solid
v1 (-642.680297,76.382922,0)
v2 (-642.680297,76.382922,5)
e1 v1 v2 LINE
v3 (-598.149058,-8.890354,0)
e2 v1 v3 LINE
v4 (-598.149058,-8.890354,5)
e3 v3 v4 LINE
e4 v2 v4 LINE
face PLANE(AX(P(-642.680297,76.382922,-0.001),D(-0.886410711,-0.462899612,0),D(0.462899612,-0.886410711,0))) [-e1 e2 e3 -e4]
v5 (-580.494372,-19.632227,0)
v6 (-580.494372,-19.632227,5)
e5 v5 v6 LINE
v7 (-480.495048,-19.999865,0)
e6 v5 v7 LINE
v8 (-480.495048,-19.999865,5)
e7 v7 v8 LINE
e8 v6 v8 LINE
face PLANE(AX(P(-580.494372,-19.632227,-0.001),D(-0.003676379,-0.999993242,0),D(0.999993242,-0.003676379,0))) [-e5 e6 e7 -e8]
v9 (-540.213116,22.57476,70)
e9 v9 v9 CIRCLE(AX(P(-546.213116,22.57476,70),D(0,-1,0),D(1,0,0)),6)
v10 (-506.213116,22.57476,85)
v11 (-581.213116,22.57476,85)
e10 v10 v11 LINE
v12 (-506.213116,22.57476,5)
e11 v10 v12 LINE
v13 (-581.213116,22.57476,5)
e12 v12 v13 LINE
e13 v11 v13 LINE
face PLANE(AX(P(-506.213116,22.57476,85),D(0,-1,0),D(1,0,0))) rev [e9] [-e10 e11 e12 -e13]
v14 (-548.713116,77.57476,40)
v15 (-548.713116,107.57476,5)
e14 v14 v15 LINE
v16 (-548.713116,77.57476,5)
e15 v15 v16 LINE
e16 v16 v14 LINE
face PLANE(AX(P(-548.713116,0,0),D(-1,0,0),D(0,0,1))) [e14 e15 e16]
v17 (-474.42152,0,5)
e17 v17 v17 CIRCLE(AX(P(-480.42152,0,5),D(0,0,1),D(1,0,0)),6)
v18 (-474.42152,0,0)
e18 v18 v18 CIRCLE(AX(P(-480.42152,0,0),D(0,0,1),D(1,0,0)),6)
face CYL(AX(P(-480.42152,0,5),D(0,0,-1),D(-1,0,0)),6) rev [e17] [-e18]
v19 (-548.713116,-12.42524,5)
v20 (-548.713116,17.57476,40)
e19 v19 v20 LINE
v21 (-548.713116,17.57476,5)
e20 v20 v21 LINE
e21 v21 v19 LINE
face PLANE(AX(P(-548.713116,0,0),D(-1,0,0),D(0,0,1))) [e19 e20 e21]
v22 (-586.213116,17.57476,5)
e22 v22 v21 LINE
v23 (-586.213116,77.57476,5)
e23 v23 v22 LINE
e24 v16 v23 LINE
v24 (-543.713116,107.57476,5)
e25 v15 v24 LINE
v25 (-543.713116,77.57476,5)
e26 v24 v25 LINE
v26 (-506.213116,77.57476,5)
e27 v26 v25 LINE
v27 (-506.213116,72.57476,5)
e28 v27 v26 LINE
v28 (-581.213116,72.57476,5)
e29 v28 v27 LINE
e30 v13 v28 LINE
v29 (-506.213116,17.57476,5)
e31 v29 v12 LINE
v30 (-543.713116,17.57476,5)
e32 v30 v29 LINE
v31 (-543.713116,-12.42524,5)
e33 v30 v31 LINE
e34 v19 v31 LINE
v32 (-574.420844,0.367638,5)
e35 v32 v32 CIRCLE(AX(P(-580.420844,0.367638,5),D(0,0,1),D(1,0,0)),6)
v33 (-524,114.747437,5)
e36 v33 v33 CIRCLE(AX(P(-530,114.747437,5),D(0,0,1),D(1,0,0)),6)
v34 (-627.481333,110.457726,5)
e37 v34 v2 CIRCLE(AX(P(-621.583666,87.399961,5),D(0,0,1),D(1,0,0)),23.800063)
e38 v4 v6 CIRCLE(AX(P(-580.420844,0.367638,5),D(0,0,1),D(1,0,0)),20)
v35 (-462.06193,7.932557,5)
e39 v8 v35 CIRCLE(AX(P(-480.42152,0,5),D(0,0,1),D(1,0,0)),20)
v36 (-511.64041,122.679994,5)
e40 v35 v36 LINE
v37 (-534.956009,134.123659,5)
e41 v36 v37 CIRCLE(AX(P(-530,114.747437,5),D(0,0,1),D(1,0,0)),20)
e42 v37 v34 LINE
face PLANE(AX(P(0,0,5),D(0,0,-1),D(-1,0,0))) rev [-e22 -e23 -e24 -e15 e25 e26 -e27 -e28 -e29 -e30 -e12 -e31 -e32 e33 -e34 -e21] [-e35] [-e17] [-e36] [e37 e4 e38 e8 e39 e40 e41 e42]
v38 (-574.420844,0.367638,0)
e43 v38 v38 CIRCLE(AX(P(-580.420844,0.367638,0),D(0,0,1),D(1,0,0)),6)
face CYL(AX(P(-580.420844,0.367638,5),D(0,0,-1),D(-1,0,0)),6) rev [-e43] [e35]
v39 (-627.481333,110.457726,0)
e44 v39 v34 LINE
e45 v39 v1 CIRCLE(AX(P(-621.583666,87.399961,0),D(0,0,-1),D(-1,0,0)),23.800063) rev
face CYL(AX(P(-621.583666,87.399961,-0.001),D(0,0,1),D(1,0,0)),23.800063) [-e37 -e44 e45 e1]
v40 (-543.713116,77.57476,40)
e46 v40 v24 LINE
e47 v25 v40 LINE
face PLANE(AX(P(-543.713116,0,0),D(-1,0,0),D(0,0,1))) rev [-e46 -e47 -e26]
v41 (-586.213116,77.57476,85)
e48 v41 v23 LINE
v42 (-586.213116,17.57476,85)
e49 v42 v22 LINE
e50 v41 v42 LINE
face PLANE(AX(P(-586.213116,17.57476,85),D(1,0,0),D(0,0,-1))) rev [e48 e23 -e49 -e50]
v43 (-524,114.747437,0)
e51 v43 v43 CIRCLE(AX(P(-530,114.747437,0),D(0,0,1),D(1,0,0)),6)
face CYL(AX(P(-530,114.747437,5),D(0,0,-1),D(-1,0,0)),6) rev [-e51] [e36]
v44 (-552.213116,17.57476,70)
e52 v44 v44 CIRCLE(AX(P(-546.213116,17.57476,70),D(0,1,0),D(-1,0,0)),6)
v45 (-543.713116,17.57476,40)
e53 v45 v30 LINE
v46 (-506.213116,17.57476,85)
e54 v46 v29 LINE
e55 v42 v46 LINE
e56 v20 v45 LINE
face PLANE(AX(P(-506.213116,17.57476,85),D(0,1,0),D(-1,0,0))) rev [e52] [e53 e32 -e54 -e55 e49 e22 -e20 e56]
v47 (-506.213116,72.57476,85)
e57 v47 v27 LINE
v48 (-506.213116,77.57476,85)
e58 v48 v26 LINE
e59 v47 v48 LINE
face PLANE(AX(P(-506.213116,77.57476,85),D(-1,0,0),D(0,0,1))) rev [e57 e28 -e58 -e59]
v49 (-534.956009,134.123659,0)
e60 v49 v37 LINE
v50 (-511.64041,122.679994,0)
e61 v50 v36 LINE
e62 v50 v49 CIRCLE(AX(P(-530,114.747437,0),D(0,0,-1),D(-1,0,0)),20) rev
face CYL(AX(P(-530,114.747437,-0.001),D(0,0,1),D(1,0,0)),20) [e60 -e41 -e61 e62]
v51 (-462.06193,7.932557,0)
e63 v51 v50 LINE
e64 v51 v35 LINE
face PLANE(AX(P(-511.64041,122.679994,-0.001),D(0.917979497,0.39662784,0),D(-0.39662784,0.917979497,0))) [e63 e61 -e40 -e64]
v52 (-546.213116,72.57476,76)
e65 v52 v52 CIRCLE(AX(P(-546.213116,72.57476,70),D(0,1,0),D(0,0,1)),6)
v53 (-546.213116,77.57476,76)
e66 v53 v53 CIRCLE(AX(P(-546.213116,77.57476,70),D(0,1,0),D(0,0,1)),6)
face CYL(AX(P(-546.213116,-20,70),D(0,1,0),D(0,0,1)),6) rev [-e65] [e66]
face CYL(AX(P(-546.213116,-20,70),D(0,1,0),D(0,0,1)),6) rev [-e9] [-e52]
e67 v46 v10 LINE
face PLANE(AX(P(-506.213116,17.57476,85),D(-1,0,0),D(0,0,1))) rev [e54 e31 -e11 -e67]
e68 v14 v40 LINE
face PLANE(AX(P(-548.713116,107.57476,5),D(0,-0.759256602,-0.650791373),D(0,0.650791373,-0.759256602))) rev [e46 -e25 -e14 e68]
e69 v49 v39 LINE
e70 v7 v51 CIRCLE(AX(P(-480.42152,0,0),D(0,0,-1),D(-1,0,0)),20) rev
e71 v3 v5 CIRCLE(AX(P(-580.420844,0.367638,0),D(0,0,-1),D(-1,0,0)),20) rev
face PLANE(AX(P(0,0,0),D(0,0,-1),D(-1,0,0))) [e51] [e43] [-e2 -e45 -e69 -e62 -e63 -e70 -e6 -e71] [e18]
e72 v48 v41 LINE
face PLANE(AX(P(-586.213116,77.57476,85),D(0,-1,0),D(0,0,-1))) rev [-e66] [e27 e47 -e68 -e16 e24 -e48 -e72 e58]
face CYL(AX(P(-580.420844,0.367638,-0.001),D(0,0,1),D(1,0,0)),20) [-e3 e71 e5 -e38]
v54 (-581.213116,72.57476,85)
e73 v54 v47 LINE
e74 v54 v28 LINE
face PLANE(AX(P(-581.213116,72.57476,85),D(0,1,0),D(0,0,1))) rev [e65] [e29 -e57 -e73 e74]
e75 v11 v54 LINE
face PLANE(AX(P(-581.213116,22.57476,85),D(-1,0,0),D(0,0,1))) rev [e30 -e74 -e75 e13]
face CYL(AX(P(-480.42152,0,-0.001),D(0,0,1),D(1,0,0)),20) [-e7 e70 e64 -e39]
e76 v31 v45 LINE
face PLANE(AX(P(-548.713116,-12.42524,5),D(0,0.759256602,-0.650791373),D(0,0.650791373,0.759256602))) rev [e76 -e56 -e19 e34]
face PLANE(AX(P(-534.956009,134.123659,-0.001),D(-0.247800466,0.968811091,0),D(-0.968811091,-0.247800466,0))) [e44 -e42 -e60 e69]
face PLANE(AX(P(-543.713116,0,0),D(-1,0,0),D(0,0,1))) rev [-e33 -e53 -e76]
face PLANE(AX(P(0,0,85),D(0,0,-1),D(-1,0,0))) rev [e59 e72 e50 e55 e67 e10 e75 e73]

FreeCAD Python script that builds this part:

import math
import FreeCAD as App
import Part
import Sketcher
from FreeCAD import Vector


def add_polygon(sketch, points):
    """Adds a closed chain of lines whose ends are joined by coincident constraints."""
    first, n = sketch.GeometryCount, len(points)
    for a, b in zip(points, points[1:] + points[:1]):
        sketch.addGeometry(Part.LineSegment(App.Vector(*a, 0), App.Vector(*b, 0)), False)
    for i in range(n):
        sketch.addConstraint(Sketcher.Constraint("Coincident", first + i, 2, first + (i + 1) % n, 1))

doc = App.newDocument("Part")
params = doc.addObject("Spreadsheet::Sheet", "Params")
for row, (alias, value) in enumerate([
    ("sketch1_diameter", "12 mm"),
    ("pad1_length", "5 mm"),
    ("sketch2_radius", "20 mm"),
    ("sketch2_length", "125 mm"),
    ("sketch2_length2", "100 mm"),
    ("sketch2_height", "240.02 mm"),
    ("pocket1_length", "5 mm"),
    ("sketch3_width", "80 mm"),
    ("sketch3_width2", "75 mm"),
    ("sketch3_height", "60 mm"),
    ("sketch3_height2", "5 mm"),
    ("pad2_length", "80 mm"),
    ("sketch4_diameter", "12 mm"),
    ("sketch5_width", "30 mm"),
    ("sketch5_height", "35 mm"),
    ("pad3_length", "5 mm"),
], start=1):
    params.set(f"A{row}", alias)
    params.set(f"B{row}", "=" + value)
    params.setAlias(f"B{row}", alias)

body = doc.addObject("PartDesign::Body", "Body")

# Sketch on XY plane
sketch1 = doc.addObject("Sketcher::SketchObject", "Sketch")
body.addObject(sketch1)
sketch1.AttachmentSupport = (doc.XY_Plane, [""])
sketch1.MapMode = "FlatFace"
add_polygon(sketch1, [(-680, 148), (-680, -26), (-408, -26), (-408, 148)])  # lines 0-3
sketch1.addGeometry(Part.Circle(Vector(-580, 0, 0), Vector(0, 0, 1), 6), False)  # 4
sketch1.addGeometry(Part.Circle(Vector(-480, 0, 0), Vector(0, 0, 1), 6), False)  # 5
sketch1.addGeometry(Part.Circle(Vector(-530, 115, 0), Vector(0, 0, 1), 6), False)  # 6
sketch1.addConstraint([
    Sketcher.Constraint("Vertical", 0),
    Sketcher.Constraint("Horizontal", 1),
    Sketcher.Constraint("Vertical", 2),
    Sketcher.Constraint("Horizontal", 3),
    Sketcher.Constraint("Equal", 4, 5),
    Sketcher.Constraint("Equal", 5, 6),
    Sketcher.Constraint("PointOnObject", 5, 3, -1),
    Sketcher.Constraint("Diameter", 4, 12.0),
    Sketcher.Constraint("DistanceX", 6, 3, -1, 1, 530.0),
    Sketcher.Constraint("DistanceX", 1, 1, 1, 2, 272.5248),
    Sketcher.Constraint("DistanceY", 0, 2, 0, 1, 173.40807),
    Sketcher.Constraint("DistanceY", 4, 3, 6, 3, 114.379799),
    Sketcher.Constraint("DistanceX", 5, 3, -1, 1, 480.42152),
    Sketcher.Constraint("DistanceY", 0, 2, -1, 1, 25.560711),
    Sketcher.Constraint("DistanceX", 0, 2, 4, 3, 99.993312),
    Sketcher.Constraint("DistanceY", 0, 2, 4, 3, 25.928349),
    Sketcher.Constraint("DistanceX", 4, 3, -1, 1, 580.420844),
])
sketch1.setExpression("Constraints[11]", "Params.sketch1_diameter")
pad1 = doc.addObject("PartDesign::Pad", "Pad")
body.addObject(pad1)
pad1.Profile = sketch1
pad1.setExpression("Length", "Params.pad1_length")

# Sketch on XY plane
sketch2 = doc.addObject("Sketcher::SketchObject", "Sketch001")
body.addObject(sketch2)
sketch2.AttachmentSupport = (doc.XY_Plane, [""])
sketch2.MapMode = "FlatFace"
sketch2.AttachmentOffset = App.Placement(Vector(0, 0, 5), App.Rotation())
add_polygon(sketch2, [(-714, 181), (-714, -59), (-375, -59), (-375, 181)])  # lines 0-3
sketch2.addGeometry(Part.LineSegment(Vector(-627, 110, 0), Vector(-535, 134, 0)), False)  # 4
sketch2.addGeometry(Part.ArcOfCircle(Part.Circle(Vector(-530, 115, 0), Vector(0, 0, 1), 20), math.radians(23), math.radians(104)), False)  # 5
sketch2.addGeometry(Part.LineSegment(Vector(-512, 123, 0), Vector(-462, 8, 0)), False)  # 6
sketch2.addGeometry(Part.ArcOfCircle(Part.Circle(Vector(-480, 0, 0), Vector(0, 0, 1), 20), math.radians(-90), math.radians(23)), False)  # 7
sketch2.addGeometry(Part.LineSegment(Vector(-480, -20, 0), Vector(-580, -20, 0)), False)  # 8
sketch2.addGeometry(Part.ArcOfCircle(Part.Circle(Vector(-580, 0, 0), Vector(0, 0, 1), 20), math.radians(-152), math.radians(-90)), False)  # 9
sketch2.addGeometry(Part.LineSegment(Vector(-598, -9, 0), Vector(-643, 76, 0)), False)  # 10
sketch2.addGeometry(Part.ArcOfCircle(Part.Circle(Vector(-622, 87, 0), Vector(0, 0, 1), 24), math.radians(104), math.radians(208)), False)  # 11
sketch2.addConstraint([
    Sketcher.Constraint("Tangent", 4, 2, 5, 2),
    Sketcher.Constraint("Tangent", 5, 1, 6, 1),
    Sketcher.Constraint("Tangent", 6, 2, 7, 2),
    Sketcher.Constraint("Tangent", 7, 1, 8, 1),
    Sketcher.Constraint("Tangent", 8, 2, 9, 2),
    Sketcher.Constraint("Tangent", 9, 1, 10, 1),
    Sketcher.Constraint("Tangent", 10, 2, 11, 2),
    Sketcher.Constraint("Tangent", 11, 1, 4, 1),
    Sketcher.Constraint("Vertical", 0),
    Sketcher.Constraint("Horizontal", 1),
    Sketcher.Constraint("Vertical", 2),
    Sketcher.Constraint("Horizontal", 3),
    Sketcher.Constraint("Equal", 5, 7),
    Sketcher.Constraint("Equal", 7, 9),
    Sketcher.Constraint("PointOnObject", 7, 3, -1),
    Sketcher.Constraint("Radius", 5, 20.0),
    Sketcher.Constraint("Distance", 6, 125.0),
    Sketcher.Constraint("Distance", 8, 100.0),
    Sketcher.Constraint("DistanceX", 5, 3, -1, 1, 530.0),
    Sketcher.Constraint("DistanceY", 0, 2, 0, 1, 240.02),
    Sketcher.Constraint("DistanceX", 1, 1, 1, 2, 339.137),
    Sketcher.Constraint("DistanceX", 0, 2, -1, 1, 713.72),
    Sketcher.Constraint("DistanceY", 0, 2, -1, 1, 58.867),
    Sketcher.Constraint("Radius", 11, 23.800063),
    Sketcher.Constraint("DistanceY", 9, 3, 5, 3, 114.379799),
    Sketcher.Constraint("DistanceX", 4, 2, 5, 1, 23.315599),
    Sketcher.Constraint("DistanceY", 7, 1, 5, 3, 134.747302),
    Sketcher.Constraint("Distance", 4, 95.503989),
])
sketch2.setExpression("Constraints[19]", "Params.sketch2_radius")
sketch2.setExpression("Constraints[20]", "Params.sketch2_length")
sketch2.setExpression("Constraints[21]", "Params.sketch2_length2")
sketch2.setExpression("Constraints[23]", "Params.sketch2_height")
pocket1 = doc.addObject("PartDesign::Pocket", "Pocket")
body.addObject(pocket1)
pocket1.Profile = sketch2
pocket1.setExpression("Length", "Params.pocket1_length")

# Sketch on XY plane
sketch3 = doc.addObject("Sketcher::SketchObject", "Sketch002")
body.addObject(sketch3)
sketch3.AttachmentSupport = (doc.XY_Plane, [""])
sketch3.MapMode = "FlatFace"
sketch3.AttachmentOffset = App.Placement(Vector(0, 0, 5), App.Rotation())
add_polygon(sketch3, [(-506, 78), (-586, 78), (-586, 18), (-506, 18), (-506, 23), (-581, 23), (-581, 73), (-506, 73)])  # lines 0-7
sketch3.addConstraint([
    Sketcher.Constraint("Horizontal", 0),
    Sketcher.Constraint("Vertical", 1),
    Sketcher.Constraint("Horizontal", 2),
    Sketcher.Constraint("Vertical", 3),
    Sketcher.Constraint("Horizontal", 4),
    Sketcher.Constraint("Vertical", 5),
    Sketcher.Constraint("Horizontal", 6),
    Sketcher.Constraint("Vertical", 7),
    Sketcher.Constraint("Vertical", 3, 2, 6, 2),
    Sketcher.Constraint("Equal", 3, 7),
    Sketcher.Constraint("DistanceX", 0, 2, 0, 1, 80.0),
    Sketcher.Constraint("DistanceX", 4, 2, 4, 1, 75.0),
    Sketcher.Constraint("DistanceY", 1, 2, 1, 1, 60.0),
    Sketcher.Constraint("DistanceY", 3, 1, 3, 2, 5.0),
    Sketcher.Constraint("DistanceY", -1, 1, 0, 2, 77.57476),
    Sketcher.Constraint("DistanceX", 0, 2, -1, 1, 586.213116),
])
sketch3.setExpression("Constraints[18]", "Params.sketch3_width")
sketch3.setExpression("Constraints[19]", "Params.sketch3_width2")
sketch3.setExpression("Constraints[20]", "Params.sketch3_height")
sketch3.setExpression("Constraints[21]", "Params.sketch3_height2")
pad2 = doc.addObject("PartDesign::Pad", "Pad001")
body.addObject(pad2)
pad2.Profile = sketch3
pad2.setExpression("Length", "Params.pad2_length")

# Sketch on XZ plane
sketch4 = doc.addObject("Sketcher::SketchObject", "Sketch003")
body.addObject(sketch4)
sketch4.AttachmentSupport = (doc.XZ_Plane, [""])
sketch4.MapMode = "FlatFace"
sketch4.AttachmentOffset = App.Placement(Vector(0, 0, -77.57476), App.Rotation())
sketch4.addGeometry(Part.Circle(Vector(-546, 70, 0), Vector(0, 0, 1), 6), False)
sketch4.addConstraint([
    Sketcher.Constraint("Diameter", 0, 12.0),
    Sketcher.Constraint("DistanceY", -1, 1, 0, 3, 70.0),
    Sketcher.Constraint("DistanceX", 0, 3, -1, 1, 546.213116),
])
sketch4.setExpression("Constraints[0]", "Params.sketch4_diameter")
pocket2 = doc.addObject("PartDesign::Pocket", "Pocket001")
body.addObject(pocket2)
pocket2.Profile = sketch4
pocket2.Type = "ThroughAll"
pocket2.Reversed = True

# Sketch on YZ plane
sketch5 = doc.addObject("Sketcher::SketchObject", "Sketch004")
body.addObject(sketch5)
sketch5.AttachmentSupport = (doc.YZ_Plane, [""])
sketch5.MapMode = "FlatFace"
sketch5.AttachmentOffset = App.Placement(Vector(0, 0, -546.213116), App.Rotation())
add_polygon(sketch5, [(78, 40), (108, 5), (78, 5)])  # lines 0-2
add_polygon(sketch5, [(18, 5), (-12, 5), (18, 40)])  # lines 3-5
sketch5.addConstraint([
    Sketcher.Constraint("Horizontal", 1),
    Sketcher.Constraint("Vertical", 2),
    Sketcher.Constraint("Horizontal", 3),
    Sketcher.Constraint("Vertical", 5),
    Sketcher.Constraint("Horizontal", 1, 2, 3, 2),
    Sketcher.Constraint("Horizontal", 2, 2, 4, 2),
    Sketcher.Constraint("Equal", 1, 3),
    Sketcher.Constraint("DistanceX", 1, 2, 1, 1, 30.0),
    Sketcher.Constraint("DistanceY", 2, 1, 2, 2, 35.0),
    Sketcher.Constraint("DistanceY", -1, 1, 0, 2, 5.0),
    Sketcher.Constraint("DistanceX", 3, 2, 1, 2, 90.0),
    Sketcher.Constraint("DistanceX", -1, 1, 0, 2, 107.57476),
])
sketch5.setExpression("Constraints[13]", "Params.sketch5_width")
sketch5.setExpression("Constraints[14]", "Params.sketch5_height")
pad3 = doc.addObject("PartDesign::Pad", "Pad002")
body.addObject(pad3)
pad3.Profile = sketch5
pad3.setExpression("Length", "Params.pad3_length")
pad3.Midplane = True

doc.recompute()
